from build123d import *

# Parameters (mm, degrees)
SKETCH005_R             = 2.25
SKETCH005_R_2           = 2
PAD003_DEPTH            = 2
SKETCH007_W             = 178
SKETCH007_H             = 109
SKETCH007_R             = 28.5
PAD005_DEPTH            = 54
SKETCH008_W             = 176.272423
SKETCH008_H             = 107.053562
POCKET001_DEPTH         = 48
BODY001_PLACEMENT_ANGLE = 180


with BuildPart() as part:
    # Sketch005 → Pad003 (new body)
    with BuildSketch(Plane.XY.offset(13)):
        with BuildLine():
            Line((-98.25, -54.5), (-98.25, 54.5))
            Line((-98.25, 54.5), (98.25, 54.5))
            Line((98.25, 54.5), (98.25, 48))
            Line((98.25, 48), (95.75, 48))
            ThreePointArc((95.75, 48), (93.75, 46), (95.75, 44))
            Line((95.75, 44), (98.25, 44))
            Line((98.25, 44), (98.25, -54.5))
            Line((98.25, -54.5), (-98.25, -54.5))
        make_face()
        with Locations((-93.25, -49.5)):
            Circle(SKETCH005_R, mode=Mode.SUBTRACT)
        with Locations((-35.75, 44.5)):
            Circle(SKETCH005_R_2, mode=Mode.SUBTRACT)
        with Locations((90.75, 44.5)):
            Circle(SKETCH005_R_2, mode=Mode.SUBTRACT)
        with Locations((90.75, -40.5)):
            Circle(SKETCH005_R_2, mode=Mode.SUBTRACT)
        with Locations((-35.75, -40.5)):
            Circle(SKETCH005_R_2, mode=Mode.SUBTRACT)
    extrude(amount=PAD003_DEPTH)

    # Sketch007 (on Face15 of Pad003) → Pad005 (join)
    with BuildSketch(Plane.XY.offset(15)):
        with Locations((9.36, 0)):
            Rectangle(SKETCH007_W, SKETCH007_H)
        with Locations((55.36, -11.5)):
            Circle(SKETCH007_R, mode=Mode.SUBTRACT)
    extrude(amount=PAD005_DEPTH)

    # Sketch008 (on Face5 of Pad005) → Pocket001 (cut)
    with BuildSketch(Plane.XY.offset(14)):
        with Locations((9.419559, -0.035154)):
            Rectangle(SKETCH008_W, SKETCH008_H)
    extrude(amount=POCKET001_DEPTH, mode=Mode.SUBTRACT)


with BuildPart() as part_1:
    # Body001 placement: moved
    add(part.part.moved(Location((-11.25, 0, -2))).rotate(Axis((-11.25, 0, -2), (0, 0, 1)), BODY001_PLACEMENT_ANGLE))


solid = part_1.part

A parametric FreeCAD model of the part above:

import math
import FreeCAD as App
import Part
import Sketcher
Q = App.Units.Quantity


def add_polygon(sketch, points):
    """Adds a closed chain of lines whose ends are joined by coincident constraints."""
    first, n = sketch.GeometryCount, len(points)
    for a, b in zip(points, points[1:] + points[:1]):
        sketch.addGeometry(Part.LineSegment(App.Vector(*a, 0), App.Vector(*b, 0)), False)
    for i in range(n):
        sketch.addConstraint(Sketcher.Constraint("Coincident", first + i, 2, first + (i + 1) % n, 1))

doc = App.newDocument("Part")
body = doc.addObject("PartDesign::Body", "Body")

# Sketch on XY plane
sketch1 = doc.addObject("Sketcher::SketchObject", "Sketch")
body.addObject(sketch1)
sketch1.AttachmentSupport = (doc.XY_Plane, [""])
sketch1.MapMode = "FlatFace"
sketch1.AttachmentOffset = App.Placement(App.Vector(0, 0, 13), App.Rotation())
sketch1.addGeometry(Part.LineSegment(App.Vector(-98.2, 54.5, 0), App.Vector(-98.2, -54.5, 0)), False)
sketch1.addGeometry(Part.LineSegment(App.Vector(-98.2, -54.5, 0), App.Vector(98.2, -54.5, 0)), False)
sketch1.addGeometry(Part.LineSegment(App.Vector(98.2, -54.5, 0), App.Vector(98.2, 44, 0)), False)
sketch1.addGeometry(Part.LineSegment(App.Vector(98.2, 44, 0), App.Vector(95.8, 44, 0)), False)
sketch1.addGeometry(Part.ArcOfCircle(Part.Circle(App.Vector(95.8, 46, 0), App.Vector(0, 0, 1), 2), math.radians(90), math.radians(270)), False)
sketch1.addGeometry(Part.LineSegment(App.Vector(95.8, 48, 0), App.Vector(98.2, 48, 0)), False)
sketch1.addGeometry(Part.LineSegment(App.Vector(98.2, 48, 0), App.Vector(98.2, 54.5, 0)), False)
sketch1.addGeometry(Part.LineSegment(App.Vector(98.2, 54.5, 0), App.Vector(-98.2, 54.5, 0)), False)
sketch1.addGeometry(Part.Circle(App.Vector(90.8, -40.5, 0), App.Vector(0, 0, 1), 2), False)
sketch1.addGeometry(Part.Circle(App.Vector(-35.8, -40.5, 0), App.Vector(0, 0, 1), 2), False)
sketch1.addGeometry(Part.Circle(App.Vector(-93.2, -49.5, 0), App.Vector(0, 0, 1), 2.2), False)
sketch1.addGeometry(Part.Circle(App.Vector(90.8, 44.5, 0), App.Vector(0, 0, 1), 2), False)
sketch1.addGeometry(Part.Circle(App.Vector(-35.8, 44.5, 0), App.Vector(0, 0, 1), 2), False)
sketch1.addConstraint(Sketcher.Constraint("Coincident", 0, 2, 1, 1))
sketch1.addConstraint(Sketcher.Constraint("Coincident", 1, 2, 2, 1))
sketch1.addConstraint(Sketcher.Constraint("Coincident", 2, 2, 3, 1))
sketch1.addConstraint(Sketcher.Constraint("Tangent", 3, 2, 4, 2))
sketch1.addConstraint(Sketcher.Constraint("Tangent", 4, 1, 5, 1))
sketch1.addConstraint(Sketcher.Constraint("Coincident", 5, 2, 6, 1))
sketch1.addConstraint(Sketcher.Constraint("Coincident", 6, 2, 7, 1))
sketch1.addConstraint(Sketcher.Constraint("Coincident", 7, 2, 0, 1))
sketch1.addConstraint(Sketcher.Constraint("Vertical", 0))
sketch1.addConstraint(Sketcher.Constraint("Horizontal", 1))
sketch1.addConstraint(Sketcher.Constraint("Vertical", 2))
sketch1.addConstraint(Sketcher.Constraint("Horizontal", 3))
sketch1.addConstraint(Sketcher.Constraint("Horizontal", 5))
sketch1.addConstraint(Sketcher.Constraint("Vertical", 6))
sketch1.addConstraint(Sketcher.Constraint("Horizontal", 7))
sketch1.addConstraint(Sketcher.Constraint("Equal", 4, 8))
sketch1.addConstraint(Sketcher.Constraint("Equal", 8, 9))
sketch1.addConstraint(Sketcher.Constraint("Equal", 9, 11))
sketch1.addConstraint(Sketcher.Constraint("Equal", 11, 12))
sketch1.addConstraint(Sketcher.Constraint("Symmetric", 0, 2, 6, 2, -1, 1))
sketch1.addConstraint(Sketcher.Constraint("Horizontal", 8, 3, 9, 3))
sketch1.addConstraint(Sketcher.Constraint("Horizontal", 11, 3, 12, 3))
sketch1.addConstraint(Sketcher.Constraint("Vertical", 8, 3, 11, 3))
sketch1.addConstraint(Sketcher.Constraint("Vertical", 9, 3, 12, 3))
sketch1.addConstraint(Sketcher.Constraint("Vertical", 2, 2, 5, 2))
sketch1.addConstraint(Sketcher.Constraint("Diameter", 8, Q("4 mm")))
sketch1.addConstraint(Sketcher.Constraint("Diameter", 10, Q("4.5 mm")))
sketch1.addConstraint(Sketcher.Constraint("DistanceY", 0, 2, 0, 1, Q("109 mm")))
sketch1.addConstraint(Sketcher.Constraint("DistanceX", 1, 1, 1, 2, Q("196.5 mm")))
sketch1.addConstraint(Sketcher.Constraint("DistanceX", 3, 2, 3, 1, Q("2.5 mm")))
sketch1.addConstraint(Sketcher.Constraint("DistanceY", 2, 1, 2, 2, Q("98.5 mm")))
sketch1.addConstraint(Sketcher.Constraint("DistanceX", 8, 3, 4, 3, Q("5 mm")))
sketch1.addConstraint(Sketcher.Constraint("DistanceY", 10, 3, 9, 3, Q("9 mm")))
sketch1.addConstraint(Sketcher.Constraint("DistanceX", 10, 3, 8, 3, Q("184 mm")))
sketch1.addConstraint(Sketcher.Constraint("DistanceY", 8, 3, 11, 3, Q("85 mm")))
sketch1.addConstraint(Sketcher.Constraint("DistanceY", 0, 2, 10, 3, Q("5 mm")))
sketch1.addConstraint(Sketcher.Constraint("DistanceX", 9, 3, 1, 2, Q("134 mm")))
pad1 = doc.addObject("PartDesign::Pad", "Pad")
body.addObject(pad1)
pad1.Profile = sketch1
pad1.Length = 2

# Sketch on XY plane
sketch2 = doc.addObject("Sketcher::SketchObject", "Sketch001")
body.addObject(sketch2)
sketch2.AttachmentSupport = (doc.XY_Plane, [""])
sketch2.MapMode = "FlatFace"
sketch2.AttachmentOffset = App.Placement(App.Vector(0, 0, 15), App.Rotation())
add_polygon(sketch2, [(-80, 54), (-80, -54), (98, -54), (98, 54)])  # lines 0-3
sketch2.addGeometry(Part.Circle(App.Vector(55, -12, 0), App.Vector(0, 0, 1), 28), False)  # 4
sketch2.addConstraint(Sketcher.Constraint("Vertical", 0))
sketch2.addConstraint(Sketcher.Constraint("Horizontal", 1))
sketch2.addConstraint(Sketcher.Constraint("Vertical", 2))
sketch2.addConstraint(Sketcher.Constraint("Horizontal", 3))
sketch2.addConstraint(Sketcher.Constraint("Diameter", 4, Q("57 mm")))
sketch2.addConstraint(Sketcher.Constraint("DistanceX", 1, 1, 1, 2, Q("178 mm")))
sketch2.addConstraint(Sketcher.Constraint("DistanceY", 0, 2, 0, 1, Q("109 mm")))
sketch2.addConstraint(Sketcher.Constraint("DistanceX", 0, 2, 4, 3, Q("135 mm")))
sketch2.addConstraint(Sketcher.Constraint("DistanceY", 0, 2, 4, 3, Q("43 mm")))
sketch2.addConstraint(Sketcher.Constraint("DistanceY", 4, 3, -1, 1, Q("11.5 mm")))
sketch2.addConstraint(Sketcher.Constraint("DistanceX", -1, 1, 4, 3, Q("55.36 mm")))
pad2 = doc.addObject("PartDesign::Pad", "Pad001")
body.addObject(pad2)
pad2.Profile = sketch2
pad2.Length = 54

# Sketch on XY plane
sketch3 = doc.addObject("Sketcher::SketchObject", "Sketch002")
body.addObject(sketch3)
sketch3.AttachmentSupport = (doc.XY_Plane, [""])
sketch3.MapMode = "FlatFace"
sketch3.AttachmentOffset = App.Placement(App.Vector(0, 0, 14), App.Rotation())
add_polygon(sketch3, [(-79, 53), (-79, -54), (98, -54), (98, 53)])  # lines 0-3
sketch3.addConstraint(Sketcher.Constraint("Vertical", 0))
sketch3.addConstraint(Sketcher.Constraint("Horizontal", 1))
sketch3.addConstraint(Sketcher.Constraint("Vertical", 2))
sketch3.addConstraint(Sketcher.Constraint("Horizontal", 3))
sketch3.addConstraint(Sketcher.Constraint("DistanceY", 0, 2, 0, 1, Q("107.053562 mm")))
sketch3.addConstraint(Sketcher.Constraint("DistanceX", 1, 1, 1, 2, Q("176.272423 mm")))
sketch3.addConstraint(Sketcher.Constraint("DistanceX", -1, 1, 1, 2, Q("97.55577 mm")))
sketch3.addConstraint(Sketcher.Constraint("DistanceY", 0, 2, -1, 1, Q("53.561935 mm")))
pocket1 = doc.addObject("PartDesign::Pocket", "Pocket")
body.addObject(pocket1)
pocket1.Profile = sketch3
pocket1.Length = 48
pocket1.Reversed = True
body2 = doc.addObject("PartDesign::Body", "Body001")
doc.recompute()

body.Placement = App.Placement(App.Vector(-11.25, 0, -2), App.Rotation(App.Vector(0, 0, 1), 180))
boolean = doc.addObject("PartDesign::Boolean", "Boolean")
body2.addObject(boolean)
boolean.Type = "Fuse"
boolean.addObjects([body])

doc.recompute()
